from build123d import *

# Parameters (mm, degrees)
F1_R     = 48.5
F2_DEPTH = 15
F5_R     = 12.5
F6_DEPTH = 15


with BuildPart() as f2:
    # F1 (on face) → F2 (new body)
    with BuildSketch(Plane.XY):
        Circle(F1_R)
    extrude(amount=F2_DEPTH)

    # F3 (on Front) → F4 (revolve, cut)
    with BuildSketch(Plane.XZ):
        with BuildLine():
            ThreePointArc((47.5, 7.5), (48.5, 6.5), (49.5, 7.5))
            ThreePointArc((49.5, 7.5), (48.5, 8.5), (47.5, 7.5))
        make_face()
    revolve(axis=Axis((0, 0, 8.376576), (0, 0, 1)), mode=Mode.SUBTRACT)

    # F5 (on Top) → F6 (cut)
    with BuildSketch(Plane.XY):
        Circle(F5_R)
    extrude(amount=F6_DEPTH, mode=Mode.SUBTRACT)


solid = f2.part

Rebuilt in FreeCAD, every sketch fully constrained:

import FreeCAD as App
import Part
import Sketcher
Q = App.Units.Quantity

doc = App.newDocument("Part")
params = doc.addObject("Spreadsheet::Sheet", "Params")
for row, (alias, value) in enumerate([
    ("sketch1_diameter", "97 mm"),
    ("pad1_length", "15 mm"),
    ("sketch2_diameter", "2 mm"),
    ("groove_angle", "360 deg"),
    ("sketch3_diameter", "25 mm"),
    ("pocket1_length", "15 mm"),
], start=1):
    params.set(f"A{row}", alias)
    params.set(f"B{row}", "=" + value)
    params.setAlias(f"B{row}", alias)

body = doc.addObject("PartDesign::Body", "Body")

# Sketch on XY plane
sketch1 = body.newObject("Sketcher::SketchObject", "Sketch")
sketch1.AttachmentSupport = (doc.getObject("XY_Plane"), [""])
sketch1.MapMode = "FlatFace"
sketch1.addGeometry(Part.Circle(App.Vector(0, 0, 0), App.Vector(0, 0, 1), 48.5), False)
sketch1.addConstraint([
    Sketcher.Constraint("Coincident", 0, 3, -1, 1),
    Sketcher.Constraint("Diameter", 0, Q("97 mm")),
])
sketch1.setExpression("Constraints[1]", "Params.sketch1_diameter")
pad1 = body.newObject("PartDesign::Pad", "Pad")
pad1.Profile = sketch1
pad1.setExpression("Length", "Params.pad1_length")

# Sketch on XZ plane
sketch2 = body.newObject("Sketcher::SketchObject", "Sketch001")
sketch2.AttachmentSupport = (doc.getObject("XZ_Plane"), [""])
sketch2.MapMode = "FlatFace"
sketch2.addGeometry(Part.Circle(App.Vector(48.5, 7.5, 0), App.Vector(0, 0, 1), 1), False)
sketch2.addConstraint([
    Sketcher.Constraint("Diameter", 0, Q("2 mm")),
    Sketcher.Constraint("DistanceX", -1, 1, 0, 3, Q("48.5 mm")),
    Sketcher.Constraint("DistanceY", -1, 1, 0, 3, Q("7.5 mm")),
])
sketch2.setExpression("Constraints[0]", "Params.sketch2_diameter")
groove = body.newObject("PartDesign::Groove", "Groove")
groove.Profile = sketch2
groove.ReferenceAxis = (sketch2, ["V_Axis"])
groove.setExpression("Angle", "Params.groove_angle")

# Sketch on XY plane
sketch3 = body.newObject("Sketcher::SketchObject", "Sketch002")
sketch3.AttachmentSupport = (doc.getObject("XY_Plane"), [""])
sketch3.MapMode = "FlatFace"
sketch3.addGeometry(Part.Circle(App.Vector(0, 0, 0), App.Vector(0, 0, 1), 12.5), False)
sketch3.addConstraint([
    Sketcher.Constraint("Coincident", 0, 3, -1, 1),
    Sketcher.Constraint("Diameter", 0, Q("25 mm")),
])
sketch3.setExpression("Constraints[1]", "Params.sketch3_diameter")
pocket1 = body.newObject("PartDesign::Pocket", "Pocket")
pocket1.Profile = sketch3
pocket1.setExpression("Length", "Params.pocket1_length")
pocket1.Reversed = True

doc.recompute()
